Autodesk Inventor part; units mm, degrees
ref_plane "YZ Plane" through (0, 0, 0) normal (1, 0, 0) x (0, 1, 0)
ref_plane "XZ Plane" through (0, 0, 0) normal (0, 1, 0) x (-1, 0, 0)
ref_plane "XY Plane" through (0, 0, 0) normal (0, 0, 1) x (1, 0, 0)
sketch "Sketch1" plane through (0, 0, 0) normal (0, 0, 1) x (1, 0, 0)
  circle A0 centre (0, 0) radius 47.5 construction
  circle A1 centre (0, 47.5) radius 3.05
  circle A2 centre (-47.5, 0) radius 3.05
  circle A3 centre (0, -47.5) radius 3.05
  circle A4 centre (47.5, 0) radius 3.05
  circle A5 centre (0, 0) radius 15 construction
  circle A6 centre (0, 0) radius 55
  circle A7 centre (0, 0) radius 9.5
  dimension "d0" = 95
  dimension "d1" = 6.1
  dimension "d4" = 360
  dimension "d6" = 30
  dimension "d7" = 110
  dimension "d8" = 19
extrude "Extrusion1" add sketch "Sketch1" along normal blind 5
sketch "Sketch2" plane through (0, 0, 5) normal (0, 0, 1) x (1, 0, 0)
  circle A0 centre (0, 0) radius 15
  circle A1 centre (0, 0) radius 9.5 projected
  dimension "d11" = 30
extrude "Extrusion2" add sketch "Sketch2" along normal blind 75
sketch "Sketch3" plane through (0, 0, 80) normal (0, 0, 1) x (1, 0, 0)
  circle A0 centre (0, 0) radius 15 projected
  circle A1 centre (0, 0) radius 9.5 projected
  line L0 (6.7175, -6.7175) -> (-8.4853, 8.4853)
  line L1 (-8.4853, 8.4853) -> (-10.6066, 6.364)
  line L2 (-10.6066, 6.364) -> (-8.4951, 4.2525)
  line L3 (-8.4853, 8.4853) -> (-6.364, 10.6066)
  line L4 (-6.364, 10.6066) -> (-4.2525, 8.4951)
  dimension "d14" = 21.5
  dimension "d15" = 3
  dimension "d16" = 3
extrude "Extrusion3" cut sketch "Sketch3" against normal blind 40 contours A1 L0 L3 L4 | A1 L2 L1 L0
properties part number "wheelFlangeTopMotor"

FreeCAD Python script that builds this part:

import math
import FreeCAD as App
import Part
import Sketcher
from FreeCAD import Vector
Q = App.Units.Quantity

doc = App.newDocument("Part")
params = doc.addObject("Spreadsheet::Sheet", "Params")
for row, (alias, value) in enumerate([
    ("sketch1_diameter", "110 mm"),
    ("sketch1_diameter2", "19 mm"),
    ("sketch1_diameter3", "6.1 mm"),
    ("pad1_length", "5 mm"),
    ("sketch2_diameter", "30 mm"),
    ("sketch2_diameter2", "19 mm"),
    ("pad2_length", "75 mm"),
    ("sketch3_radius", "9.5 mm"),
    ("sketch3_length", "6 mm"),
    ("pocket1_length", "40 mm"),
], start=1):
    params.set(f"A{row}", alias)
    params.set(f"B{row}", "=" + value)
    params.setAlias(f"B{row}", alias)

body = doc.addObject("PartDesign::Body", "Body")

# Sketch on XY plane
sketch1 = body.newObject("Sketcher::SketchObject", "Sketch")
sketch1.AttachmentSupport = (doc.getObject("XY_Plane"), [""])
sketch1.MapMode = "FlatFace"
sketch1.addGeometry(Part.Circle(Vector(0, 0, 0), Vector(0, 0, 1), 55), False)
sketch1.addGeometry(Part.Circle(Vector(0, -47.5, 0), Vector(0, 0, 1), 3), False)
sketch1.addGeometry(Part.Circle(Vector(-47.5, 0, 0), Vector(0, 0, 1), 3), False)
sketch1.addGeometry(Part.Circle(Vector(0, 0, 0), Vector(0, 0, 1), 9.5), False)
sketch1.addGeometry(Part.Circle(Vector(47.5, 0, 0), Vector(0, 0, 1), 3), False)
sketch1.addGeometry(Part.Circle(Vector(0, 47.5, 0), Vector(0, 0, 1), 3), False)
sketch1.addConstraint(Sketcher.Constraint("Coincident", 0, 3, -1, 1))
sketch1.addConstraint(Sketcher.Constraint("Coincident", 3, 3, -1, 1))
sketch1.addConstraint(Sketcher.Constraint("Equal", 1, 2))
sketch1.addConstraint(Sketcher.Constraint("Equal", 2, 4))
sketch1.addConstraint(Sketcher.Constraint("Equal", 4, 5))
sketch1.addConstraint(Sketcher.Constraint("Symmetric", 2, 3, 4, 3, -1, 1))
sketch1.addConstraint(Sketcher.Constraint("Symmetric", 1, 3, 5, 3, -1, 1))
sketch1.addConstraint(Sketcher.Constraint("PointOnObject", 1, 3, -2))
sketch1.addConstraint(Sketcher.Constraint("PointOnObject", 2, 3, -1))
sketch1.addConstraint(Sketcher.Constraint("Diameter", 0, Q("110 mm")))
sketch1.addConstraint(Sketcher.Constraint("Diameter", 3, Q("19 mm")))
sketch1.addConstraint(Sketcher.Constraint("Diameter", 1, Q("6.1 mm")))
sketch1.addConstraint(Sketcher.Constraint("DistanceX", 2, 3, 4, 3, Q("95 mm")))
sketch1.addConstraint(Sketcher.Constraint("DistanceY", 1, 3, 5, 3, Q("95 mm")))
sketch1.setExpression("Constraints[9]", "Params.sketch1_diameter")
sketch1.setExpression("Constraints[10]", "Params.sketch1_diameter2")
sketch1.setExpression("Constraints[11]", "Params.sketch1_diameter3")
pad1 = body.newObject("PartDesign::Pad", "Pad")
pad1.Profile = sketch1
pad1.setExpression("Length", "Params.pad1_length")

# Sketch on XY plane
sketch2 = body.newObject("Sketcher::SketchObject", "Sketch001")
sketch2.AttachmentSupport = (doc.getObject("XY_Plane"), [""])
sketch2.MapMode = "FlatFace"
sketch2.AttachmentOffset = App.Placement(Vector(0, 0, 5), App.Rotation())
sketch2.addGeometry(Part.Circle(Vector(0, 0, 0), Vector(0, 0, 1), 15), False)
sketch2.addGeometry(Part.Circle(Vector(0, 0, 0), Vector(0, 0, 1), 10), False)
sketch2.addConstraint(Sketcher.Constraint("Coincident", 0, 3, -1, 1))
sketch2.addConstraint(Sketcher.Constraint("Coincident", 1, 3, -1, 1))
sketch2.addConstraint(Sketcher.Constraint("Diameter", 0, Q("30 mm")))
sketch2.addConstraint(Sketcher.Constraint("Diameter", 1, Q("19 mm")))
sketch2.setExpression("Constraints[2]", "Params.sketch2_diameter")
sketch2.setExpression("Constraints[3]", "Params.sketch2_diameter2")
pad2 = body.newObject("PartDesign::Pad", "Pad001")
pad2.Profile = sketch2
pad2.setExpression("Length", "Params.pad2_length")

# Sketch on XY plane
sketch3 = body.newObject("Sketcher::SketchObject", "Sketch002")
sketch3.AttachmentSupport = (doc.getObject("XY_Plane"), [""])
sketch3.MapMode = "FlatFace"
sketch3.AttachmentOffset = App.Placement(Vector(0, 0, 80), App.Rotation())
sketch3.addGeometry(Part.LineSegment(Vector(-4.3, 8.5, 0), Vector(-6.4, 10.6, 0)), False)
sketch3.addGeometry(Part.LineSegment(Vector(-6.4, 10.6, 0), Vector(-10.6, 6.4, 0)), False)
sketch3.addGeometry(Part.LineSegment(Vector(-10.6, 6.4, 0), Vector(-8.5, 4.3, 0)), False)
sketch3.addGeometry(Part.ArcOfCircle(Part.Circle(Vector(0, 0, 0), Vector(0, 0, 1), 9.5), math.radians(117), math.radians(153)), False)
sketch3.addConstraint(Sketcher.Constraint("Coincident", 0, 2, 1, 1))
sketch3.addConstraint(Sketcher.Constraint("Coincident", 1, 2, 2, 1))
sketch3.addConstraint(Sketcher.Constraint("Coincident", 2, 2, 3, 2))
sketch3.addConstraint(Sketcher.Constraint("Coincident", 3, 1, 0, 1))
sketch3.addConstraint(Sketcher.Constraint("Coincident", 3, 3, -1, 1))
sketch3.addConstraint(Sketcher.Constraint("Perpendicular", 0, 1))
sketch3.addConstraint(Sketcher.Constraint("Perpendicular", 1, 2))
sketch3.addConstraint(Sketcher.Constraint("Equal", 0, 2))
sketch3.addConstraint(Sketcher.Constraint("Radius", 3, Q("9.5 mm")))
sketch3.addConstraint(Sketcher.Constraint("Angle", 0, Q("135 deg")))
sketch3.addConstraint(Sketcher.Constraint("Distance", 1, Q("6 mm")))
sketch3.addConstraint(Sketcher.Constraint("Distance", 0, Q("2.986 mm")))
sketch3.setExpression("Constraints[8]", "Params.sketch3_radius")
sketch3.setExpression("Constraints[10]", "Params.sketch3_length")
pocket1 = body.newObject("PartDesign::Pocket", "Pocket")
pocket1.Profile = sketch3
pocket1.setExpression("Length", "Params.pocket1_length")

doc.recompute()
